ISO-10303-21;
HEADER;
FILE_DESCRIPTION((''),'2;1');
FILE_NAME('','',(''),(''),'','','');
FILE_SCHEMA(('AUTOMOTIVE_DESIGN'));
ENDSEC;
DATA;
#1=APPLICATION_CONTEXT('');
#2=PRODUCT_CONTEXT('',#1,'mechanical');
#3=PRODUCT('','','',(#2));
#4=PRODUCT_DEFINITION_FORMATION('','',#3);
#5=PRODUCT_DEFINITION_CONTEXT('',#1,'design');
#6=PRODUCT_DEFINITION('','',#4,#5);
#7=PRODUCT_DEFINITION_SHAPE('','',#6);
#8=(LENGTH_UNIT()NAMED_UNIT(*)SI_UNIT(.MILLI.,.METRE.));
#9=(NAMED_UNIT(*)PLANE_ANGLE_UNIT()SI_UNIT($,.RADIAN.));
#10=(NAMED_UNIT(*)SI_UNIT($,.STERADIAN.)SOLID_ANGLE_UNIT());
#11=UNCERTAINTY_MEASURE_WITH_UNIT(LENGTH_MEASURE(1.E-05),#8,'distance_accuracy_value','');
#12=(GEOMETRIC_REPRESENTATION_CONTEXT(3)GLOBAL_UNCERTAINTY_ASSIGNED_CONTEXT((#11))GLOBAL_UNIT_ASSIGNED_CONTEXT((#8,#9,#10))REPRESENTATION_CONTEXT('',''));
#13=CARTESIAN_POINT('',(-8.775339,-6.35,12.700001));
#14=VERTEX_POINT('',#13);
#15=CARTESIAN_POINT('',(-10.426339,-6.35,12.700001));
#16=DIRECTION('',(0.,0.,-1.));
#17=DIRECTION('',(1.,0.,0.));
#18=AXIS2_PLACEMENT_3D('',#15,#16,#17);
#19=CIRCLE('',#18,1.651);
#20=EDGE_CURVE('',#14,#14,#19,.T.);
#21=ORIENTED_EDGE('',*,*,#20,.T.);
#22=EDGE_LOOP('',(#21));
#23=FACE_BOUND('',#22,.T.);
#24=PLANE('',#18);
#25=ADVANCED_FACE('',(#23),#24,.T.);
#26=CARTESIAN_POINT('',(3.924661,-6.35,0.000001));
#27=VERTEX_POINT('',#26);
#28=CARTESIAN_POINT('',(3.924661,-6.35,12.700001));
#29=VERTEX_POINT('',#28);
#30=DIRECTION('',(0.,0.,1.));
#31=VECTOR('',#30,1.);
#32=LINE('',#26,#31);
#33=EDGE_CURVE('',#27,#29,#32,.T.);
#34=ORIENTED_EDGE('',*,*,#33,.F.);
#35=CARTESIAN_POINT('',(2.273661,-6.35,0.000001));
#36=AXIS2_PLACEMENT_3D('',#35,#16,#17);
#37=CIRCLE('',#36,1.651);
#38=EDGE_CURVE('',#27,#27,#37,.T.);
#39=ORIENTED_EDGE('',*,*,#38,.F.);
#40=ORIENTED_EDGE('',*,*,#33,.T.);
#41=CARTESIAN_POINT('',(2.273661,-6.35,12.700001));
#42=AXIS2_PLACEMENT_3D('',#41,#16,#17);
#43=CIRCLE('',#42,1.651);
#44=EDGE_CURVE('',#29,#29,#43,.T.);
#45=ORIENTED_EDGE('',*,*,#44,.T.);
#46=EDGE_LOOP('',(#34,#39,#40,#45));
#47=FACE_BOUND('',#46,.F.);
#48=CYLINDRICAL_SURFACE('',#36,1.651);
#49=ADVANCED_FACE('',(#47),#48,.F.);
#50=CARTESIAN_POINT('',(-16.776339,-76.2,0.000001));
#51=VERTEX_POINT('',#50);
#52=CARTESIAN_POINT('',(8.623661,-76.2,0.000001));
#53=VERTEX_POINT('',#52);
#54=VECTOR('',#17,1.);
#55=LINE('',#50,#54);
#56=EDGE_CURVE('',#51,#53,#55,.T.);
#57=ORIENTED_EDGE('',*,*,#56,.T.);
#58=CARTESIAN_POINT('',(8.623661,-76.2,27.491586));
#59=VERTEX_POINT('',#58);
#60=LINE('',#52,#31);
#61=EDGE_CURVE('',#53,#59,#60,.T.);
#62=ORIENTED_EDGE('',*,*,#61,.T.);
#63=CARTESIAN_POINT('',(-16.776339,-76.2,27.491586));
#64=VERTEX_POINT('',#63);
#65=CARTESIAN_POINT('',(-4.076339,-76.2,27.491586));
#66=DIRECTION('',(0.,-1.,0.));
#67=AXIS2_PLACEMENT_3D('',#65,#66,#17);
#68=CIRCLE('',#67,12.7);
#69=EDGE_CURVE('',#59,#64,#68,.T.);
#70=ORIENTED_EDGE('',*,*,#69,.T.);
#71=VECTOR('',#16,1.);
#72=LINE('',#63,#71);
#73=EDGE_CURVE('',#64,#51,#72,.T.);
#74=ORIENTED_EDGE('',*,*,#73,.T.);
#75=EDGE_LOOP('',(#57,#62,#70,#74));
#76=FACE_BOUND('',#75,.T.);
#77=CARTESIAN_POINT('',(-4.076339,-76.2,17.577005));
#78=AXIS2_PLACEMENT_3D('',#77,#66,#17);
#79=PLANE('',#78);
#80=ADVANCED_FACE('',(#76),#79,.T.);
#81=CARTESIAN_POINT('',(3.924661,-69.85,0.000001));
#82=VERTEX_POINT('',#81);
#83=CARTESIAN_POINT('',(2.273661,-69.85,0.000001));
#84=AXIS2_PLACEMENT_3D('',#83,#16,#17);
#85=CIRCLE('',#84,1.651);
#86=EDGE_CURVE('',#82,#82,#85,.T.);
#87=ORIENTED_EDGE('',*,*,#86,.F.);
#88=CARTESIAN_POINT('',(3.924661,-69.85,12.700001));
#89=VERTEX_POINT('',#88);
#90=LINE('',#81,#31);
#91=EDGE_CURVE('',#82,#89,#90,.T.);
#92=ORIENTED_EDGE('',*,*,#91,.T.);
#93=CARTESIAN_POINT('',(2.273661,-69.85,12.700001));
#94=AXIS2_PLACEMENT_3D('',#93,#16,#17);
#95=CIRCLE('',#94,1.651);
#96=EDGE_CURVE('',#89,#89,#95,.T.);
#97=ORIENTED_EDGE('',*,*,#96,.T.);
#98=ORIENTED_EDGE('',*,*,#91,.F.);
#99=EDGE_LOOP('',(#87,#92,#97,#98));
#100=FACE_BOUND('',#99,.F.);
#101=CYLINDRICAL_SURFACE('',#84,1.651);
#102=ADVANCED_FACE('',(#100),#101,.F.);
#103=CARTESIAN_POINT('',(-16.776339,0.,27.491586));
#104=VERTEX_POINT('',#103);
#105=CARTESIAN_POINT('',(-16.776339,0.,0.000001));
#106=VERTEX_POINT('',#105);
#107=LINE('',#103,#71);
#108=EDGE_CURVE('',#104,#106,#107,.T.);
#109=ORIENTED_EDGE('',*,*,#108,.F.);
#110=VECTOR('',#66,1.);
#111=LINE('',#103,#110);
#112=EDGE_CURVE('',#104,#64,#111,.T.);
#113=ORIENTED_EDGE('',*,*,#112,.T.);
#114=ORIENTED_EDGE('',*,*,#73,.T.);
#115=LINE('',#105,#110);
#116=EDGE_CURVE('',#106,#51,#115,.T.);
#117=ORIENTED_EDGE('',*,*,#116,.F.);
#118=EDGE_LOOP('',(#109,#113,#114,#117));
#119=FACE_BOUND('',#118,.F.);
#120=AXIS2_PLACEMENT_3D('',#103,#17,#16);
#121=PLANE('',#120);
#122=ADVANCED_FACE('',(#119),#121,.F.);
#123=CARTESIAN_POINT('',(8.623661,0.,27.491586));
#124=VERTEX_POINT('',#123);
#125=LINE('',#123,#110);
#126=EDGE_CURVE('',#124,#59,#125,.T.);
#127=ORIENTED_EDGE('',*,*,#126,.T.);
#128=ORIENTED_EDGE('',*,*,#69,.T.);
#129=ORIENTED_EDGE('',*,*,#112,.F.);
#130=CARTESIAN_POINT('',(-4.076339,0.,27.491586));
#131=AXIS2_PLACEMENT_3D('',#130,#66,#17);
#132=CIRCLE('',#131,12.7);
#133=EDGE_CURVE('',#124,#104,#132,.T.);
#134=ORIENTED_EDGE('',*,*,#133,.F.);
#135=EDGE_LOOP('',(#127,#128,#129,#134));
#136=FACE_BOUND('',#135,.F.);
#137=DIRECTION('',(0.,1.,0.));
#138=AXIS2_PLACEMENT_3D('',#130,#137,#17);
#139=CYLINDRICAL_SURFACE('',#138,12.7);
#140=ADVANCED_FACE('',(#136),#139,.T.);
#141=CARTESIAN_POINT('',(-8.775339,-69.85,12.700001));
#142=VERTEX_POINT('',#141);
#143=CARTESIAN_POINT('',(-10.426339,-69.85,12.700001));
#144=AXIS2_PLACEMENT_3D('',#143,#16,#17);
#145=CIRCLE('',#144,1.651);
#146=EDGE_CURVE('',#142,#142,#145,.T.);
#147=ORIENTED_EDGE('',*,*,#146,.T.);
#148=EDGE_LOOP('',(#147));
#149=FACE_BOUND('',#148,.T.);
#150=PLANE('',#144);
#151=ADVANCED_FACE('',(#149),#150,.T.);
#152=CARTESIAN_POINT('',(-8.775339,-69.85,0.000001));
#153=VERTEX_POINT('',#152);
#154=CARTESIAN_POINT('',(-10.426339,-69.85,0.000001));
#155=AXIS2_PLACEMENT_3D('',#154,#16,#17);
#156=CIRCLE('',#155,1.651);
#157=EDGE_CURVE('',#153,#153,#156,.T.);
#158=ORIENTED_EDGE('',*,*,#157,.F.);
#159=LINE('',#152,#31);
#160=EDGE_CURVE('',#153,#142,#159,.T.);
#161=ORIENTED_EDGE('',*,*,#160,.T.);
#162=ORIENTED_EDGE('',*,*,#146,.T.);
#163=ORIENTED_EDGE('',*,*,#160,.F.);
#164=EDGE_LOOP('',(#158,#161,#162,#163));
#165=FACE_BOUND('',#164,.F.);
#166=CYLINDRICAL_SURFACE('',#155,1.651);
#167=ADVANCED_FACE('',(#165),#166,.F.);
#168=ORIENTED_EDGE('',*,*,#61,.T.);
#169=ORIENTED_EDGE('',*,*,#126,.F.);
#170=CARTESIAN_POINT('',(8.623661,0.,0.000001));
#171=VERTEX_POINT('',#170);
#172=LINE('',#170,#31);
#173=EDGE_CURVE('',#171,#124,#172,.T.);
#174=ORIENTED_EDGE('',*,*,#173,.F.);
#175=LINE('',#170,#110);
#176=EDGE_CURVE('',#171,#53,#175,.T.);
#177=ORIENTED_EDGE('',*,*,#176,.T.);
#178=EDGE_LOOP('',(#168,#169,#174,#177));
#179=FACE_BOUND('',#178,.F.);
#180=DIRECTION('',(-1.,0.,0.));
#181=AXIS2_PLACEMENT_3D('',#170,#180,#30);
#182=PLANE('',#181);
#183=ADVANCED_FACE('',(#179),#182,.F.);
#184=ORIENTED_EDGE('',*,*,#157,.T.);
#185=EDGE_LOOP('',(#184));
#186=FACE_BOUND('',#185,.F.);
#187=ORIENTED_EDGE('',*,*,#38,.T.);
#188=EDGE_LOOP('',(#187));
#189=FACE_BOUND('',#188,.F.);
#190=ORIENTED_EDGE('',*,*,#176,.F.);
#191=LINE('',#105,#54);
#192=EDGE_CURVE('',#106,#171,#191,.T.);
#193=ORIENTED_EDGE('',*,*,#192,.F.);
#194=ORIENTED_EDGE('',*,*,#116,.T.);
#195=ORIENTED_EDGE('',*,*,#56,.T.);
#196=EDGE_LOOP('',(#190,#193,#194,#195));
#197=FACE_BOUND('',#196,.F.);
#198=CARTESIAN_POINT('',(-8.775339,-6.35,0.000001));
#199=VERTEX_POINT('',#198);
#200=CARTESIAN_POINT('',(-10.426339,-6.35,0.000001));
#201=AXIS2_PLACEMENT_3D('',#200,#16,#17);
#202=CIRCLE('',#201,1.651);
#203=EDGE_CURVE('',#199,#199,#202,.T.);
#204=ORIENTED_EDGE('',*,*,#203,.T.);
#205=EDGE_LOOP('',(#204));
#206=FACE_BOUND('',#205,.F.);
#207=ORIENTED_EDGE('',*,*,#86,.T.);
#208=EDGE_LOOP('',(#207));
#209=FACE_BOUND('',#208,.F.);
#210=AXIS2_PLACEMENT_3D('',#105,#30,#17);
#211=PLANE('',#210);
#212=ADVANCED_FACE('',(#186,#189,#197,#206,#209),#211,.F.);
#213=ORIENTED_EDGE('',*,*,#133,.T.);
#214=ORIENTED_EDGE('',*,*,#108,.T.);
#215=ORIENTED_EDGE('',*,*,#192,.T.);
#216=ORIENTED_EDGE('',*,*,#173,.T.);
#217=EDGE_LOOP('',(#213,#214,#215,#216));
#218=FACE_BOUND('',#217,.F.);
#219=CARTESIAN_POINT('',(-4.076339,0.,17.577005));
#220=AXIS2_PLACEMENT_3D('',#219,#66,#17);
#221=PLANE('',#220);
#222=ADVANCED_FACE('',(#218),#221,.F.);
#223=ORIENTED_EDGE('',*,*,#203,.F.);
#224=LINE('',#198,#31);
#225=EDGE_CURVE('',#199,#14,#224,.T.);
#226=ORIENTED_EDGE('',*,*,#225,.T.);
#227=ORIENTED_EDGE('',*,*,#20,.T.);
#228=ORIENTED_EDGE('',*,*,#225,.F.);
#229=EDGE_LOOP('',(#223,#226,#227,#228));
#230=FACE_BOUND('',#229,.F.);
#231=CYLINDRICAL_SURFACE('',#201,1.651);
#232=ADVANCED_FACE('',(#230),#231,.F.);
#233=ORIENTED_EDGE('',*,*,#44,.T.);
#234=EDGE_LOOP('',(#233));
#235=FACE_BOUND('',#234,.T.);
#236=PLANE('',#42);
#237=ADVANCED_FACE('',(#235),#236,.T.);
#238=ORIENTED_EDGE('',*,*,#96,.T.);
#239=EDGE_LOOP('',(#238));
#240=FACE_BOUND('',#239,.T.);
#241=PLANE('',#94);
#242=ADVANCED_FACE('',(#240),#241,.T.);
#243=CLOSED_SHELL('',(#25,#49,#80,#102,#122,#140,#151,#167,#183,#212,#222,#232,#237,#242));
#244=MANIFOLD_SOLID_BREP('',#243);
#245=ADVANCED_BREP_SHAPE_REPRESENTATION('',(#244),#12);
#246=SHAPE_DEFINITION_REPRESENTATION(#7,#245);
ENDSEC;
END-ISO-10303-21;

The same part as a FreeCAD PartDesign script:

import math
import FreeCAD as App
import Part
import Sketcher

V = App.Vector
Q = App.Units.Quantity

doc = App.newDocument("Part")
body = doc.addObject("PartDesign::Body", "Body")

# Sketch on XZ plane
sketch1 = body.newObject("Sketcher::SketchObject", "Sketch")
sketch1.AttachmentSupport = (doc.getObject("XZ_Plane"), [""])
sketch1.MapMode = "FlatFace"
sketch1.addGeometry([
    Part.LineSegment(V(-17, 27, 0), V(-17, 0, 0)),
    Part.LineSegment(V(-17, 0, 0), V(9, 0, 0)),
    Part.LineSegment(V(9, 0, 0), V(9, 27, 0)),
    Part.ArcOfCircle(Part.Circle(V(-4, 27, 0), V(0, 0, 1), 13), math.radians(0), math.radians(180)),
], False)
sketch1.addConstraint([
    Sketcher.Constraint("Coincident", 0, 2, 1, 1),
    Sketcher.Constraint("Coincident", 1, 2, 2, 1),
    Sketcher.Constraint("Tangent", 2, 2, 3, 1),
    Sketcher.Constraint("Tangent", 3, 2, 0, 1),
    Sketcher.Constraint("Vertical", 0),
    Sketcher.Constraint("Horizontal", 1),
    Sketcher.Constraint("Vertical", 2),
    Sketcher.Constraint("PointOnObject", 0, 2, -1),
    Sketcher.Constraint("Radius", 3, Q("0.5 in")),
    Sketcher.Constraint("DistanceY", 0, 2, 0, 1, 27.491585),
    Sketcher.Constraint("DistanceX", 3, 3, -1, 1, 4.076339),
])
pad1 = body.newObject("PartDesign::Pad", "Pad")
pad1.Profile = sketch1
pad1.Length = Q("3 in")

# Sketch on XY plane
sketch2 = body.newObject("Sketcher::SketchObject", "Sketch001")
sketch2.AttachmentSupport = (doc.getObject("XY_Plane"), [""])
sketch2.MapMode = "FlatFace"
sketch2.AttachmentOffset = App.Placement(V(0, 0, 0 * 25.4), App.Rotation())
sketch2.addGeometry([
    Part.Circle(V(-10.4, -6.3, 0), V(0, 0, 1), 1.7),
    Part.Circle(V(-10.4, -69.8, 0), V(0, 0, 1), 1.7),
    Part.Circle(V(2.3, -6.3, 0), V(0, 0, 1), 1.7),
    Part.Circle(V(2.3, -69.8, 0), V(0, 0, 1), 1.7),
], False)
sketch2.addConstraint([
    Sketcher.Constraint("Equal", 0, 1),
    Sketcher.Constraint("Equal", 1, 2),
    Sketcher.Constraint("Equal", 2, 3),
    Sketcher.Constraint("Horizontal", 0, 3, 2, 3),
    Sketcher.Constraint("Horizontal", 1, 3, 3, 3),
    Sketcher.Constraint("Vertical", 0, 3, 1, 3),
    Sketcher.Constraint("Vertical", 2, 3, 3, 3),
    Sketcher.Constraint("Diameter", 0, Q("0.13 in")),
    Sketcher.Constraint("DistanceY", 1, 3, 0, 3, Q("2.5 in")),
    Sketcher.Constraint("DistanceX", 0, 3, 2, 3, Q("0.5 in")),
    Sketcher.Constraint("DistanceY", 0, 3, -1, 1, Q("0.25 in")),
    Sketcher.Constraint("DistanceX", 0, 3, -1, 1, 10.426339),
])
pocket1 = body.newObject("PartDesign::Pocket", "Pocket")
pocket1.Profile = sketch2
pocket1.Length = Q("0.5 in")
pocket1.Reversed = True

doc.recompute()
